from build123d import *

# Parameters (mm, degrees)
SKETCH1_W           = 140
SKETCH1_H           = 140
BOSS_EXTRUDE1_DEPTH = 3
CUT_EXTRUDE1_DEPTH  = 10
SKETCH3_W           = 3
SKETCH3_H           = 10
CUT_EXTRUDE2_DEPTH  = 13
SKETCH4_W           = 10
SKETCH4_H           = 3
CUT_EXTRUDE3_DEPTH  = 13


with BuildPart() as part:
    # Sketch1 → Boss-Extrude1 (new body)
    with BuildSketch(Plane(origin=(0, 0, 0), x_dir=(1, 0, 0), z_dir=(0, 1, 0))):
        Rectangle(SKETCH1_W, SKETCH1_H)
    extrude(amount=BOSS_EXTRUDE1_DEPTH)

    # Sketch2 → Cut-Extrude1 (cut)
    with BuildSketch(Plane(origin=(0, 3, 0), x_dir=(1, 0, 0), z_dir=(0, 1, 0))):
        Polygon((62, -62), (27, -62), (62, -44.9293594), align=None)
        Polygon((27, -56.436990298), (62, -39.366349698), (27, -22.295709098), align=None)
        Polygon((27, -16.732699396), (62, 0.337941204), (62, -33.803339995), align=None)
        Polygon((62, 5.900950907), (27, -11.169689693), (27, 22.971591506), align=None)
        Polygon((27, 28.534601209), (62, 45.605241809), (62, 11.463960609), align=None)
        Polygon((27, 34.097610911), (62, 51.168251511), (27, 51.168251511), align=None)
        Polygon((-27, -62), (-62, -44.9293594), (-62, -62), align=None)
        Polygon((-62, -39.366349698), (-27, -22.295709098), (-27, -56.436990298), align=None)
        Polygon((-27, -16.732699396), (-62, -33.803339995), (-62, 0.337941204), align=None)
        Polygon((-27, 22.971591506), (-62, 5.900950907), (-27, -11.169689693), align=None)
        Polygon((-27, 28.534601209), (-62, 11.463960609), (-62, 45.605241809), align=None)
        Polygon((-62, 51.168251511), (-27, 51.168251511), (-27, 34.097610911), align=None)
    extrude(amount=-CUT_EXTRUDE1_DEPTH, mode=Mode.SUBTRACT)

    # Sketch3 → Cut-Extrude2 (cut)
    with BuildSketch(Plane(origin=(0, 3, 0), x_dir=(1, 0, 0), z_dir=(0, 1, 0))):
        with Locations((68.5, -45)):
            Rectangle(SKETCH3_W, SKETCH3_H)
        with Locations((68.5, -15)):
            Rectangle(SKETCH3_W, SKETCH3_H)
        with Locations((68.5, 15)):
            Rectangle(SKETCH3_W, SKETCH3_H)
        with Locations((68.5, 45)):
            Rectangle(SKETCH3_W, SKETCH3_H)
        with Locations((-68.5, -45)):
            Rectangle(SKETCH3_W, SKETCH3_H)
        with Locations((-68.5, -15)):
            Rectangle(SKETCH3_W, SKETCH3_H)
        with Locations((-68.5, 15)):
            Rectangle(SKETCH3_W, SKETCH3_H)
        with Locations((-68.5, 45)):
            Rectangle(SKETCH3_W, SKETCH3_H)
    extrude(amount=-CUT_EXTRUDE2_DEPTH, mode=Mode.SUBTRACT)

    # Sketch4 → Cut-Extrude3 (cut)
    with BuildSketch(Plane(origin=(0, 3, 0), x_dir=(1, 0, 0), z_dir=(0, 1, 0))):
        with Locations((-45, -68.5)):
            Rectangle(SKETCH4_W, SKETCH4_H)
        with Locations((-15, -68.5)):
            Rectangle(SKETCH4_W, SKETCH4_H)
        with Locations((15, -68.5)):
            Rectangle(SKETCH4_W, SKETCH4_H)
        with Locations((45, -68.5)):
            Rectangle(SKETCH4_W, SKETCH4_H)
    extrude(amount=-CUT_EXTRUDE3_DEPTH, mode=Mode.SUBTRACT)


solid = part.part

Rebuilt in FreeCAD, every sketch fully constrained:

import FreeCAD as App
import Part
import Sketcher
Q = App.Units.Quantity


def add_polygon(sketch, points):
    """Adds a closed chain of lines whose ends are joined by coincident constraints."""
    first, n = sketch.GeometryCount, len(points)
    for a, b in zip(points, points[1:] + points[:1]):
        sketch.addGeometry(Part.LineSegment(App.Vector(*a, 0), App.Vector(*b, 0)), False)
    for i in range(n):
        sketch.addConstraint(Sketcher.Constraint("Coincident", first + i, 2, first + (i + 1) % n, 1))

doc = App.newDocument("Part")
body = doc.addObject("PartDesign::Body", "Body")

sketch1 = body.newObject("Sketcher::SketchObject", "Sketch")
sketch1.AttachmentSupport = (doc.getObject("XZ_Plane"), [""])
sketch1.MapMode = "FlatFace"
add_polygon(sketch1, [(-70, -70), (-70, 70), (70, 70), (70, -70)])
sketch1.addConstraint([
    Sketcher.Constraint("Vertical", 0),
    Sketcher.Constraint("Horizontal", 1),
    Sketcher.Constraint("Vertical", 2),
    Sketcher.Constraint("Horizontal", 3),
    Sketcher.Constraint("Symmetric", 0, 2, 2, 2, -1, 1),
    Sketcher.Constraint("Equal", 3, 0),
    Sketcher.Constraint("DistanceX", 1, 1, 1, 2, Q("140 mm")),
])
pad1 = body.newObject("PartDesign::Pad", "Pad")
pad1.Profile = sketch1
pad1.Length = 3
pad1.Reversed = True

sketch2 = body.newObject("Sketcher::SketchObject", "Sketch001")
sketch2.AttachmentSupport = (doc.getObject("XZ_Plane"), [""])
sketch2.MapMode = "FlatFace"
sketch2.AttachmentOffset = App.Placement(App.Vector(0, 0, -3), App.Rotation())
add_polygon(sketch2, [(27, 62), (62, 62), (62, 45)])
add_polygon(sketch2, [(27, 56), (62, 39), (27, 22)])
add_polygon(sketch2, [(62, 0), (27, 17), (62, 34)])
add_polygon(sketch2, [(27, 11), (62, -6), (27, -23)])
add_polygon(sketch2, [(62, -46), (27, -29), (62, -11)])
add_polygon(sketch2, [(27, -34), (62, -51), (27, -51)])
add_polygon(sketch2, [(-27, 62), (-62, 45), (-62, 62)])
add_polygon(sketch2, [(-27, 22), (-62, 39), (-27, 56)])
add_polygon(sketch2, [(-62, 34), (-27, 17), (-62, 0)])
add_polygon(sketch2, [(-27, -23), (-62, -6), (-27, 11)])
add_polygon(sketch2, [(-62, -11), (-27, -29), (-62, -46)])
add_polygon(sketch2, [(-27, -51), (-62, -51), (-27, -34)])
sketch2.addConstraint([
    Sketcher.Constraint("Horizontal", 0),
    Sketcher.Constraint("Vertical", 1),
    Sketcher.Constraint("Vertical", 5),
    Sketcher.Constraint("Vertical", 8),
    Sketcher.Constraint("Vertical", 11),
    Sketcher.Constraint("Vertical", 14),
    Sketcher.Constraint("Horizontal", 16),
    Sketcher.Constraint("Vertical", 17),
    Sketcher.Constraint("Vertical", 19),
    Sketcher.Constraint("Horizontal", 20),
    Sketcher.Constraint("Vertical", 23),
    Sketcher.Constraint("Vertical", 26),
    Sketcher.Constraint("Vertical", 29),
    Sketcher.Constraint("Vertical", 32),
    Sketcher.Constraint("Horizontal", 33),
    Sketcher.Constraint("Vertical", 35),
    Sketcher.Constraint("Symmetric", 1, 2, 18, 2, -2),
    Sketcher.Constraint("Symmetric", 2, 2, 20, 2, -2),
    Sketcher.Constraint("Symmetric", 3, 2, 21, 2, -2),
    Sketcher.Constraint("Symmetric", 5, 2, 22, 2, -2),
    Sketcher.Constraint("Symmetric", 6, 2, 24, 2, -2),
    Sketcher.Constraint("Symmetric", 8, 2, 25, 2, -2),
    Sketcher.Constraint("Symmetric", 9, 2, 27, 2, -2),
    Sketcher.Constraint("Symmetric", 11, 2, 28, 2, -2),
    Sketcher.Constraint("Symmetric", 12, 2, 30, 2, -2),
    Sketcher.Constraint("Symmetric", 14, 2, 31, 2, -2),
    Sketcher.Constraint("Symmetric", 15, 2, 33, 2, -2),
    Sketcher.Constraint("Symmetric", 17, 2, 34, 2, -2),
    Sketcher.Constraint("Parallel", 2, 3),
    Sketcher.Constraint("Parallel", 3, 6),
    Sketcher.Constraint("Parallel", 4, 7),
    Sketcher.Constraint("Parallel", 6, 9),
    Sketcher.Constraint("Parallel", 7, 10),
    Sketcher.Constraint("Parallel", 9, 12),
    Sketcher.Constraint("Parallel", 10, 13),
    Sketcher.Constraint("Parallel", 12, 15),
    Sketcher.Constraint("Parallel", 13, 18),
    Sketcher.Constraint("Parallel", 15, 21),
    Sketcher.Constraint("Parallel", 21, 24),
    Sketcher.Constraint("Parallel", 24, 27),
    Sketcher.Constraint("Parallel", 27, 30),
    Sketcher.Constraint("Vertical", 1, 2, 3, 2),
    Sketcher.Constraint("Vertical", 2, 2, 4, 2),
    Sketcher.Constraint("Vertical", 5, 2, 6, 2),
    Sketcher.Constraint("Vertical", 3, 2, 7, 2),
    Sketcher.Constraint("Vertical", 8, 2, 9, 2),
    Sketcher.Constraint("Vertical", 6, 2, 10, 2),
    Sketcher.Constraint("Vertical", 11, 2, 12, 2),
    Sketcher.Constraint("Vertical", 9, 2, 13, 2),
    Sketcher.Constraint("Vertical", 14, 2, 15, 2),
    Sketcher.Constraint("Vertical", 12, 2, 16, 2),
    Sketcher.Constraint("DistanceX", 0, 1, 0, 2, Q("35 mm")),
    Sketcher.Constraint("Angle", 2, Q("154 deg")),
    Sketcher.Constraint("DistanceX", -1, 1, 0, 2, Q("62 mm")),
    Sketcher.Constraint("DistanceY", -1, 1, 0, 2, Q("62 mm")),
    Sketcher.Constraint("DistanceY", -1, 1, 6, 2, Q("16.732699 mm")),
    Sketcher.Constraint("DistanceY", 12, 2, -1, 1, Q("28.534601 mm")),
    Sketcher.Constraint("DistanceY", 9, 2, 3, 2, Q("45.267301 mm")),
    Sketcher.Constraint("DistanceY", 15, 2, 9, 2, Q("45.267301 mm")),
    Sketcher.Constraint("DistanceY", -1, 1, 3, 2, Q("39.36635 mm")),
])
pocket1 = body.newObject("PartDesign::Pocket", "Pocket")
pocket1.Profile = sketch2
pocket1.Length = 10
pocket1.Reversed = True

sketch3 = body.newObject("Sketcher::SketchObject", "Sketch002")
sketch3.AttachmentSupport = (doc.getObject("XZ_Plane"), [""])
sketch3.MapMode = "FlatFace"
sketch3.AttachmentOffset = App.Placement(App.Vector(0, 0, -3), App.Rotation())
add_polygon(sketch3, [(67, 40), (67, 50), (70, 50), (70, 40)])
add_polygon(sketch3, [(67, 10), (67, 20), (70, 20), (70, 10)])
add_polygon(sketch3, [(67, -20), (67, -10), (70, -10), (70, -20)])
add_polygon(sketch3, [(67, -50), (67, -40), (70, -40), (70, -50)])
add_polygon(sketch3, [(-70, 40), (-70, 50), (-67, 50), (-67, 40)])
add_polygon(sketch3, [(-70, 10), (-70, 20), (-67, 20), (-67, 10)])
add_polygon(sketch3, [(-70, -20), (-70, -10), (-67, -10), (-67, -20)])
add_polygon(sketch3, [(-70, -50), (-70, -40), (-67, -40), (-67, -50)])
sketch3.addConstraint([
    Sketcher.Constraint("Vertical", 0),
    Sketcher.Constraint("Horizontal", 1),
    Sketcher.Constraint("Vertical", 2),
    Sketcher.Constraint("Horizontal", 3),
    Sketcher.Constraint("Vertical", 4),
    Sketcher.Constraint("Horizontal", 5),
    Sketcher.Constraint("Vertical", 6),
    Sketcher.Constraint("Horizontal", 7),
    Sketcher.Constraint("Vertical", 8),
    Sketcher.Constraint("Horizontal", 9),
    Sketcher.Constraint("Vertical", 10),
    Sketcher.Constraint("Horizontal", 11),
    Sketcher.Constraint("Vertical", 12),
    Sketcher.Constraint("Horizontal", 13),
    Sketcher.Constraint("Vertical", 14),
    Sketcher.Constraint("Horizontal", 15),
    Sketcher.Constraint("Vertical", 16),
    Sketcher.Constraint("Horizontal", 17),
    Sketcher.Constraint("Vertical", 18),
    Sketcher.Constraint("Horizontal", 19),
    Sketcher.Constraint("Vertical", 20),
    Sketcher.Constraint("Horizontal", 21),
    Sketcher.Constraint("Vertical", 22),
    Sketcher.Constraint("Horizontal", 23),
    Sketcher.Constraint("Vertical", 24),
    Sketcher.Constraint("Horizontal", 25),
    Sketcher.Constraint("Vertical", 26),
    Sketcher.Constraint("Horizontal", 27),
    Sketcher.Constraint("Vertical", 28),
    Sketcher.Constraint("Horizontal", 29),
    Sketcher.Constraint("Vertical", 30),
    Sketcher.Constraint("Horizontal", 31),
    Sketcher.Constraint("Symmetric", 14, 2, 16, 2, -1, 1),
    Sketcher.Constraint("Symmetric", 12, 2, 18, 2, -1, 1),
    Sketcher.Constraint("Symmetric", 10, 2, 20, 2, -1, 1),
    Sketcher.Constraint("Symmetric", 8, 2, 22, 2, -1, 1),
    Sketcher.Constraint("Symmetric", 6, 2, 24, 2, -1, 1),
    Sketcher.Constraint("Symmetric", 4, 2, 26, 2, -1, 1),
    Sketcher.Constraint("Symmetric", 2, 2, 28, 2, -1, 1),
    Sketcher.Constraint("Symmetric", 0, 2, 30, 2, -1, 1),
    Sketcher.Constraint("Symmetric", 1, 2, 16, 2, -2),
    Sketcher.Constraint("Symmetric", 3, 2, 18, 2, -2),
    Sketcher.Constraint("Symmetric", 5, 2, 20, 2, -2),
    Sketcher.Constraint("Symmetric", 7, 2, 22, 2, -2),
    Sketcher.Constraint("Vertical", 3, 2, 4, 2),
    Sketcher.Constraint("Vertical", 2, 2, 5, 2),
    Sketcher.Constraint("Equal", 2, 4),
    Sketcher.Constraint("DistanceX", 1, 1, 1, 2, Q("3 mm")),
    Sketcher.Constraint("DistanceY", 0, 1, 0, 2, Q("10 mm")),
    Sketcher.Constraint("DistanceX", -1, 1, 0, 2, Q("67 mm")),
    Sketcher.Constraint("DistanceY", -1, 1, 0, 2, Q("50 mm")),
    Sketcher.Constraint("DistanceY", -1, 1, 4, 2, Q("20 mm")),
])
pocket2 = body.newObject("PartDesign::Pocket", "Pocket001")
pocket2.Profile = sketch3
pocket2.Length = 13
pocket2.Reversed = True

sketch4 = body.newObject("Sketcher::SketchObject", "Sketch003")
sketch4.AttachmentSupport = (doc.getObject("XZ_Plane"), [""])
sketch4.MapMode = "FlatFace"
sketch4.AttachmentOffset = App.Placement(App.Vector(0, 0, -3), App.Rotation())
add_polygon(sketch4, [(-50, 67), (-50, 70), (-40, 70), (-40, 67)])
add_polygon(sketch4, [(-20, 67), (-20, 70), (-10, 70), (-10, 67)])
add_polygon(sketch4, [(10, 67), (10, 70), (20, 70), (20, 67)])
add_polygon(sketch4, [(40, 67), (40, 70), (50, 70), (50, 67)])
sketch4.addConstraint([
    Sketcher.Constraint("Vertical", 0),
    Sketcher.Constraint("Horizontal", 1),
    Sketcher.Constraint("Vertical", 2),
    Sketcher.Constraint("Horizontal", 3),
    Sketcher.Constraint("Vertical", 4),
    Sketcher.Constraint("Horizontal", 5),
    Sketcher.Constraint("Vertical", 6),
    Sketcher.Constraint("Horizontal", 7),
    Sketcher.Constraint("Vertical", 8),
    Sketcher.Constraint("Horizontal", 9),
    Sketcher.Constraint("Vertical", 10),
    Sketcher.Constraint("Horizontal", 11),
    Sketcher.Constraint("Vertical", 12),
    Sketcher.Constraint("Horizontal", 13),
    Sketcher.Constraint("Vertical", 14),
    Sketcher.Constraint("Horizontal", 15),
    Sketcher.Constraint("Symmetric", 5, 2, 8, 2, -2),
    Sketcher.Constraint("Symmetric", 7, 2, 10, 2, -2),
    Sketcher.Constraint("Symmetric", 1, 2, 12, 2, -2),
    Sketcher.Constraint("Symmetric", 3, 2, 14, 2, -2),
    Sketcher.Constraint("Horizontal", 1, 2, 4, 2),
    Sketcher.Constraint("Horizontal", 3, 2, 6, 2),
    Sketcher.Constraint("Equal", 3, 5),
    Sketcher.Constraint("DistanceX", 1, 1, 1, 2, Q("10 mm")),
    Sketcher.Constraint("DistanceY", 0, 1, 0, 2, Q("3 mm")),
    Sketcher.Constraint("DistanceX", 0, 2, -1, 1, Q("50 mm")),
    Sketcher.Constraint("DistanceY", -1, 1, 0, 2, Q("70 mm")),
    Sketcher.Constraint("DistanceX", 4, 2, -1, 1, Q("20 mm")),
])
pocket3 = body.newObject("PartDesign::Pocket", "Pocket002")
pocket3.Profile = sketch4
pocket3.Length = 13
pocket3.Reversed = True

doc.recompute()
